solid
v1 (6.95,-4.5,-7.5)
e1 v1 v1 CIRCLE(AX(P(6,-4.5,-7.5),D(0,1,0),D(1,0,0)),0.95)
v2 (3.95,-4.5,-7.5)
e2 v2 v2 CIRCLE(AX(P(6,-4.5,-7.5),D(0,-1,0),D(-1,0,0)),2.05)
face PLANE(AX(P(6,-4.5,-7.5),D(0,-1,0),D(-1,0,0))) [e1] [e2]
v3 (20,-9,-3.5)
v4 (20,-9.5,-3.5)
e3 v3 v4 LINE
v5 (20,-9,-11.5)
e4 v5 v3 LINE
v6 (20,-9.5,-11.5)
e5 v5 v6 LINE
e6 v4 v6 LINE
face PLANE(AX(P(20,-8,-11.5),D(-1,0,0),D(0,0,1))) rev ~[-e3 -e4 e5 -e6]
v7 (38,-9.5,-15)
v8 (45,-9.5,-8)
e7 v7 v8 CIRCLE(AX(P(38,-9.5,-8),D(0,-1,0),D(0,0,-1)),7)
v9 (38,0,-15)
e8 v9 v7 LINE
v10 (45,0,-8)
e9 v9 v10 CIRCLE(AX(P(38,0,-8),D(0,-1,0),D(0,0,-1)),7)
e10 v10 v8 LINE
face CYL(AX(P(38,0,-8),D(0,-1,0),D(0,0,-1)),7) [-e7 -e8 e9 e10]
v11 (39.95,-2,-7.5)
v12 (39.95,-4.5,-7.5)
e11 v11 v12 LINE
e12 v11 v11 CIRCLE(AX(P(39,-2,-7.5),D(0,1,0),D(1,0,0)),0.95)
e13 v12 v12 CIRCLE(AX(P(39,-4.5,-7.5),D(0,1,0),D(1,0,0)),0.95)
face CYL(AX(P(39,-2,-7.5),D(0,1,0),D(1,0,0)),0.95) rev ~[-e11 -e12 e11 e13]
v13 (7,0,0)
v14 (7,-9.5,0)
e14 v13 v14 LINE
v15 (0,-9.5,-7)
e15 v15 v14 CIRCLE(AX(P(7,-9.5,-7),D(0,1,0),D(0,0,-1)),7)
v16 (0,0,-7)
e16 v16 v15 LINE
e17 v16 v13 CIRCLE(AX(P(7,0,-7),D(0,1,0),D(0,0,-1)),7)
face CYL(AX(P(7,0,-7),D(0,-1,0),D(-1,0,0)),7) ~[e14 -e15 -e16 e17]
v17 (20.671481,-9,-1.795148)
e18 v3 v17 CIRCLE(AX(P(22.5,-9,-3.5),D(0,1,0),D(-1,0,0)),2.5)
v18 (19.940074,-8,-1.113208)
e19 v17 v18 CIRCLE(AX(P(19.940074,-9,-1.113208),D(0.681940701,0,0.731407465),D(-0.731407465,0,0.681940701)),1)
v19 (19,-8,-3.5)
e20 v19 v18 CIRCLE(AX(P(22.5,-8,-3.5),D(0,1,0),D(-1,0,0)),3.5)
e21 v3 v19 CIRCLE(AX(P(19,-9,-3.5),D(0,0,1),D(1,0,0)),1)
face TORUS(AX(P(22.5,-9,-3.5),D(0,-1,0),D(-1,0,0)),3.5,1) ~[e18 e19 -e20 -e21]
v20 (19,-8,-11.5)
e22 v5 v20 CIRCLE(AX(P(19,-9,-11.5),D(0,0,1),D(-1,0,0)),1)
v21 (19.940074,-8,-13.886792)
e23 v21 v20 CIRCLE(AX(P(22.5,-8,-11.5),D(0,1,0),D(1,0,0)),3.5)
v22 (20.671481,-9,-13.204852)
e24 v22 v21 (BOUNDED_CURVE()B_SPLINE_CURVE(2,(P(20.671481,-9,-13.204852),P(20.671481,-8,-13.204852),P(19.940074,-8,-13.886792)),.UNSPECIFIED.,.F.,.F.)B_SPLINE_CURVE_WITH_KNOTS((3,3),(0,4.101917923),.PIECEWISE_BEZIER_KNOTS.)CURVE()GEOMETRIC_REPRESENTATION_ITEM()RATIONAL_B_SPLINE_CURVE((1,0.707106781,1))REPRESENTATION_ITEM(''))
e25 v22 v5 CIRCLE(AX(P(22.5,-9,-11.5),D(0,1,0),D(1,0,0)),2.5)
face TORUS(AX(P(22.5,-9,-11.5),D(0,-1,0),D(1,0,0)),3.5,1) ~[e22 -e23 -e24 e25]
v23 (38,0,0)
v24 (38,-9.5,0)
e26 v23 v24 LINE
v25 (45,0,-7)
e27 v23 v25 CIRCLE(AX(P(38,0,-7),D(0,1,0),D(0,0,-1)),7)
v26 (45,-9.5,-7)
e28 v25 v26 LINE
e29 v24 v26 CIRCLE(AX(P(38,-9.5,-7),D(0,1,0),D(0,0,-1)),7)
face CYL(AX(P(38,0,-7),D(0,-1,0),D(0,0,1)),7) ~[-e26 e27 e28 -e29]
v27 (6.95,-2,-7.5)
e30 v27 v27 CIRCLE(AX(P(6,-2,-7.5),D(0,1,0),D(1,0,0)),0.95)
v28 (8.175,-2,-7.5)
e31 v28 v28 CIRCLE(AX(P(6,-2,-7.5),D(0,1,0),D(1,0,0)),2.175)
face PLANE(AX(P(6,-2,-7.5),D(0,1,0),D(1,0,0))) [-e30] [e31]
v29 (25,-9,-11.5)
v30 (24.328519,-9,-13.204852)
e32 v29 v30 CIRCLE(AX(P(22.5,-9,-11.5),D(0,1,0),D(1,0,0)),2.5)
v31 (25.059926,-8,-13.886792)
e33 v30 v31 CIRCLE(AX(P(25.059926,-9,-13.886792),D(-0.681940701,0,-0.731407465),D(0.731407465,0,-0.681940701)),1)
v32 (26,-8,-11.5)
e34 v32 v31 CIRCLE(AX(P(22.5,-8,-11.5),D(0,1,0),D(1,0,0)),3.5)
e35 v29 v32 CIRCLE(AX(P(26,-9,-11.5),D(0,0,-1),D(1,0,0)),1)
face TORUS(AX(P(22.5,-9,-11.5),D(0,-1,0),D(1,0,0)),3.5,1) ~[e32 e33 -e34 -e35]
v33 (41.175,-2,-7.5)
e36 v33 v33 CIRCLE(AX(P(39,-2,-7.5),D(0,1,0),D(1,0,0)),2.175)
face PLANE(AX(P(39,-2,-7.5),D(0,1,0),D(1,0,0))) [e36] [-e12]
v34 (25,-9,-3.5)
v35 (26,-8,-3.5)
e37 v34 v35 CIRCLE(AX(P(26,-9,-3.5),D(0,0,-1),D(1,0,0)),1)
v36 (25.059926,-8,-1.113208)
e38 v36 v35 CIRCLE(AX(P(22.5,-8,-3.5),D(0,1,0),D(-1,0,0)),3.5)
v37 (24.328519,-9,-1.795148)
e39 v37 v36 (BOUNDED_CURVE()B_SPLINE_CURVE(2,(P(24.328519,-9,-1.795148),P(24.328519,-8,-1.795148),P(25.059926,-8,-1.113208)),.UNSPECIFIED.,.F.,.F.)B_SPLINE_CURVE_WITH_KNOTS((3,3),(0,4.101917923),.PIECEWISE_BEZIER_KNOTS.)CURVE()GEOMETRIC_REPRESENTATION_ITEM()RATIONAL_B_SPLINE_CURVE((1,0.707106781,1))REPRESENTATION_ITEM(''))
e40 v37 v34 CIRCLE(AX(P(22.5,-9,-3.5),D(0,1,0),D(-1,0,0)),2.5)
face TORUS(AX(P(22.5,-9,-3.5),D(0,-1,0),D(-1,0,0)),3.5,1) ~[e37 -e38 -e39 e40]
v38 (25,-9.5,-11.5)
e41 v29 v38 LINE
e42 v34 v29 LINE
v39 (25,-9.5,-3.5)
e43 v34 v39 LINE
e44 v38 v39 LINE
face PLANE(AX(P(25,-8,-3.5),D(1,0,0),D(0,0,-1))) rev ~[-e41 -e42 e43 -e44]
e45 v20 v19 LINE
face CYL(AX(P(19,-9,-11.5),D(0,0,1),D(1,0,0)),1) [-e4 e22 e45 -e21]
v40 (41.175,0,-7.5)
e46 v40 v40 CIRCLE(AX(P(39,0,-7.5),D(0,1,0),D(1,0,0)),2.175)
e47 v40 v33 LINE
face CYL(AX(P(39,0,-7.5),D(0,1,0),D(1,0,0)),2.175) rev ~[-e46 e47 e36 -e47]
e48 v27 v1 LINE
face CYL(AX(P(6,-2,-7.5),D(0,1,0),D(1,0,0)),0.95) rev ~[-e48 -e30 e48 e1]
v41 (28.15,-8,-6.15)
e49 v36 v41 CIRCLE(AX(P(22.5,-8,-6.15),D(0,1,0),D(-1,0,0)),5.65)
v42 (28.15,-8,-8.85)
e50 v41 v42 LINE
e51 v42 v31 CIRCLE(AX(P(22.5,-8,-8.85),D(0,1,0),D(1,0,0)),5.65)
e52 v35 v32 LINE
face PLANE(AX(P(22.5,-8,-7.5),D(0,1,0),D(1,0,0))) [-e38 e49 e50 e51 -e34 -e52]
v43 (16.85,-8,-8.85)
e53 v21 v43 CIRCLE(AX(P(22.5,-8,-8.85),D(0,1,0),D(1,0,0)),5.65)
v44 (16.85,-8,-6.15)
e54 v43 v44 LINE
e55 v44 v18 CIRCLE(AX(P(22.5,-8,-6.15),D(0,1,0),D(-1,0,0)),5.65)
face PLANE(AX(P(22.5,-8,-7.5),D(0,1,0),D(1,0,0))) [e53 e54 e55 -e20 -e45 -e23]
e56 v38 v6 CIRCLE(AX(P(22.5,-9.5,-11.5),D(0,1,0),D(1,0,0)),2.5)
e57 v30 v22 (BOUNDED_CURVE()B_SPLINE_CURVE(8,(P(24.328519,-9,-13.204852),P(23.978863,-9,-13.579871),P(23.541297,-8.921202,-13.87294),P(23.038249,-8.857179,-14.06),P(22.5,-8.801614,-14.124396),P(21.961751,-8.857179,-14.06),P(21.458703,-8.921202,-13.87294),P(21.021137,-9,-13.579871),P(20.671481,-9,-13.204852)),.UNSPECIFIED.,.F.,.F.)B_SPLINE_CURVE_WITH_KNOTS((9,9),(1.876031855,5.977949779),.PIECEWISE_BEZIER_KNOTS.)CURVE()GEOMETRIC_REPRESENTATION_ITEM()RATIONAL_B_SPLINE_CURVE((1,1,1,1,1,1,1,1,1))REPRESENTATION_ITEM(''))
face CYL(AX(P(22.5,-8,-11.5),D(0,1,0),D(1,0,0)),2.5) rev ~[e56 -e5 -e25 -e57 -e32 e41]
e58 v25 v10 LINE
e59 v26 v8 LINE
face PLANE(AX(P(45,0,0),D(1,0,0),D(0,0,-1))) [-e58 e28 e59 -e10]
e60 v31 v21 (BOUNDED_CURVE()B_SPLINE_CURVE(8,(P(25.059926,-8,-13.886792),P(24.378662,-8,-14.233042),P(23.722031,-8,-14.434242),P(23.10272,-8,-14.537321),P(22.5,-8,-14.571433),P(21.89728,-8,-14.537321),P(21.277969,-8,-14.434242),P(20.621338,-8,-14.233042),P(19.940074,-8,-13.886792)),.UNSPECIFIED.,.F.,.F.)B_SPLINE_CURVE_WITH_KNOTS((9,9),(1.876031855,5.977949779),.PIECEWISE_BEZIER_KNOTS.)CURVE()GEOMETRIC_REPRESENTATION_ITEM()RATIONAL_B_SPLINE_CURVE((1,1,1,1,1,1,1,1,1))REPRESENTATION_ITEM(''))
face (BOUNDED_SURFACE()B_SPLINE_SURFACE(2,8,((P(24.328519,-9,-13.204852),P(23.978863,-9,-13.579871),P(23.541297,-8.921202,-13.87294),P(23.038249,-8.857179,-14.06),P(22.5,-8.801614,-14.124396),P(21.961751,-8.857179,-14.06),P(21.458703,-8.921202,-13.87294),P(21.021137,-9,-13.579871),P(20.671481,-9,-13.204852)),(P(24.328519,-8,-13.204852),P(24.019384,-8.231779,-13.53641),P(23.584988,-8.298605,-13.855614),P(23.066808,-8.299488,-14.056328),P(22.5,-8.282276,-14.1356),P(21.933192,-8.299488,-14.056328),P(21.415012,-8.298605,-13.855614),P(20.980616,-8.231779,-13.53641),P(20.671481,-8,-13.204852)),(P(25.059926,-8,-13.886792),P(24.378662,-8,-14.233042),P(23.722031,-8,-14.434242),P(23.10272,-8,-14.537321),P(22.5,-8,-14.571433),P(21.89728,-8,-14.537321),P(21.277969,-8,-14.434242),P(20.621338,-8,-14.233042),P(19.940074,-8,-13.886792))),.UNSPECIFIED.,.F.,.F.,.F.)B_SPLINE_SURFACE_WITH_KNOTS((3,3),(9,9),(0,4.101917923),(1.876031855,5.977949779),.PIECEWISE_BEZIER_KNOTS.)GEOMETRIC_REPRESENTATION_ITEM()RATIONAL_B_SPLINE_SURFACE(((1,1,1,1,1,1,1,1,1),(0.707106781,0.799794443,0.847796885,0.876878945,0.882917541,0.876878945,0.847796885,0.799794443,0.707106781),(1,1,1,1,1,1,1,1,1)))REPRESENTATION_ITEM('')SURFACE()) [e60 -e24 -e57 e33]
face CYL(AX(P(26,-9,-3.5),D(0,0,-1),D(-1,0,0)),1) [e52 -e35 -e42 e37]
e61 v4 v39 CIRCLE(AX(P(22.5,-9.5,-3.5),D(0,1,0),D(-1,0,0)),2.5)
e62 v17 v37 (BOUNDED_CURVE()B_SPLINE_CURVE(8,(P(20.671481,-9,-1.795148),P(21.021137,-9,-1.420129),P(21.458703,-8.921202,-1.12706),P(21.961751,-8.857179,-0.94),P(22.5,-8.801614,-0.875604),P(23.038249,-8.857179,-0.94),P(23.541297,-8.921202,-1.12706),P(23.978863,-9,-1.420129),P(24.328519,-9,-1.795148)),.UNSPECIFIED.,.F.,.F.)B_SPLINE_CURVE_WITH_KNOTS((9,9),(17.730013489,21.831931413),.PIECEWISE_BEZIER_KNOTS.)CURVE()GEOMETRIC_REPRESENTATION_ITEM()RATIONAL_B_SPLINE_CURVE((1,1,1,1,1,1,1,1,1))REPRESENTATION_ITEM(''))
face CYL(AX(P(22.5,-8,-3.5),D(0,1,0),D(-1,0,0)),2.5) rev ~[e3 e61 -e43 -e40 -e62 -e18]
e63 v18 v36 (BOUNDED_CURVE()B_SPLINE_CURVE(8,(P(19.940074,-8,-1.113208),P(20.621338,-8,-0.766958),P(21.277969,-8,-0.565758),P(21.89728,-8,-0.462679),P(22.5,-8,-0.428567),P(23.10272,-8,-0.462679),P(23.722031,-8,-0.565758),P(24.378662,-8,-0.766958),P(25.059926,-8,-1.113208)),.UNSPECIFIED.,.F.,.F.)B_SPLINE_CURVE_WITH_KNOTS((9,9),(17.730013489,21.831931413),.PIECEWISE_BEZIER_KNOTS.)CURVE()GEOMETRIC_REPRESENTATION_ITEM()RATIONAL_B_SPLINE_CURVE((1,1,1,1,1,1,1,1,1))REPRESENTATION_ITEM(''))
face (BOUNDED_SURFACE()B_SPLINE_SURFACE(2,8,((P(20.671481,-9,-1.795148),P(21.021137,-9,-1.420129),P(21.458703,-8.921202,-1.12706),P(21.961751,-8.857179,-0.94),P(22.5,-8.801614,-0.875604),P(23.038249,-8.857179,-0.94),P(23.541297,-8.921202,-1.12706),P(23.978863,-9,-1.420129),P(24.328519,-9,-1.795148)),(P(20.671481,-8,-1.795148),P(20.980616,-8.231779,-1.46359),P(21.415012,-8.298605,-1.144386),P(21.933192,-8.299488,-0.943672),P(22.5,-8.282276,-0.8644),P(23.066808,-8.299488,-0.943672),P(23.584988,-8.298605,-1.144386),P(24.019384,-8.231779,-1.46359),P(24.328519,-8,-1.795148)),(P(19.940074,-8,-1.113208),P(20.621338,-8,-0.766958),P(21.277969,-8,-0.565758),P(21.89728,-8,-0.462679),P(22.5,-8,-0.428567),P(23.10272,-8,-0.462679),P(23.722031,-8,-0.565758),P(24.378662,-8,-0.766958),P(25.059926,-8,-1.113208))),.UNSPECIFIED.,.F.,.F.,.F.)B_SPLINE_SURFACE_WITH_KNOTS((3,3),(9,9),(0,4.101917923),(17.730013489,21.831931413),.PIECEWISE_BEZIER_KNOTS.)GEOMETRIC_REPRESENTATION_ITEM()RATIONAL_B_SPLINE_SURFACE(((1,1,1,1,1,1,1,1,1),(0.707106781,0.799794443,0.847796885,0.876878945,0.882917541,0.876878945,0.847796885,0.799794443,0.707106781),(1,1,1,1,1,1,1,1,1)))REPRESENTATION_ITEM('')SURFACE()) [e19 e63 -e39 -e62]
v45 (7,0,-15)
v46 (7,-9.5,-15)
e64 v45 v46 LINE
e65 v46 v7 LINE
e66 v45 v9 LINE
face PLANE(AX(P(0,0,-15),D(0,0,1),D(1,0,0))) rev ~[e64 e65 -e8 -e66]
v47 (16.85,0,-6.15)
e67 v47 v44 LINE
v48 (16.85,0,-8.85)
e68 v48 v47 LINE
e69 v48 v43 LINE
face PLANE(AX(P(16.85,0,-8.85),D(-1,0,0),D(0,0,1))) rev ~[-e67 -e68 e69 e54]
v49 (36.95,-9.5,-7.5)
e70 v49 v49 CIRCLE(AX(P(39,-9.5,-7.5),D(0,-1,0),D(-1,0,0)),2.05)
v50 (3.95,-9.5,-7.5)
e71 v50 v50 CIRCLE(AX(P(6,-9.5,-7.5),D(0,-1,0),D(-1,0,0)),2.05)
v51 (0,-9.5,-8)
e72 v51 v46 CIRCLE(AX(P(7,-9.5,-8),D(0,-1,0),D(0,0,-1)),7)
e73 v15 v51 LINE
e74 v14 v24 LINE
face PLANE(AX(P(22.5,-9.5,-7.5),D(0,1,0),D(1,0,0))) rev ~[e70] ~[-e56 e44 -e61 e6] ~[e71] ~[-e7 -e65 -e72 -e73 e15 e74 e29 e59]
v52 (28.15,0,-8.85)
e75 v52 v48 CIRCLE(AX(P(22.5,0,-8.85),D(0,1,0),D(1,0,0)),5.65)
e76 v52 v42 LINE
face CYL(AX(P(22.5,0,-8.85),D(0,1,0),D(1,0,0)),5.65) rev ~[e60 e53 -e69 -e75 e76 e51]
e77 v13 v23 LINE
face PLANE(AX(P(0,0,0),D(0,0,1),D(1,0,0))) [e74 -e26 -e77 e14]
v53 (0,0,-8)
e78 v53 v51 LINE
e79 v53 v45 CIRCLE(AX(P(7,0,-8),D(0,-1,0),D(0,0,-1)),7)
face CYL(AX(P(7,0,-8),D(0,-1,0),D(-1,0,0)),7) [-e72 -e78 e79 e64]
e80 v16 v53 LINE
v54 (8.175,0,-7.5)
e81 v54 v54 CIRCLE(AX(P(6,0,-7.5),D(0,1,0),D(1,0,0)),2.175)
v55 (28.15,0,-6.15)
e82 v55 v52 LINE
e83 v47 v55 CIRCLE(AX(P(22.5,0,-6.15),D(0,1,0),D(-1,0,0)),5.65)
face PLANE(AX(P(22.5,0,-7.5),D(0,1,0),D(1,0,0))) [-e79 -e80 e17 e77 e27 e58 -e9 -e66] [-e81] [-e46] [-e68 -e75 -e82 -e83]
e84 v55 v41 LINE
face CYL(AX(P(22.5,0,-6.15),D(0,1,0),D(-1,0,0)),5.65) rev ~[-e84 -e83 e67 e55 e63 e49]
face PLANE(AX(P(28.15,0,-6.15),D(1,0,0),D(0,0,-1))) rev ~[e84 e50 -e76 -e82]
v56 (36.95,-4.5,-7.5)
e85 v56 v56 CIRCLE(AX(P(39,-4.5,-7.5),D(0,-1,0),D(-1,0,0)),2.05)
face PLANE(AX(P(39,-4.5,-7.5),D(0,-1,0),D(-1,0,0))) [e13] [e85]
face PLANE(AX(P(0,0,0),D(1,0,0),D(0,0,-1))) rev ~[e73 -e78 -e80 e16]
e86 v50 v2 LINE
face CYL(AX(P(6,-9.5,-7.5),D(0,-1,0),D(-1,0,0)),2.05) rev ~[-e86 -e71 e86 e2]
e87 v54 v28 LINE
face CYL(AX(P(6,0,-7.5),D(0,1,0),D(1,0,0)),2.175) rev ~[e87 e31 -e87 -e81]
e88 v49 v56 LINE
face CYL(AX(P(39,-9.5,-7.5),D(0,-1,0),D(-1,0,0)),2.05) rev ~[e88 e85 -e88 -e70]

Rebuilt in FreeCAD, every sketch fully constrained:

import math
import FreeCAD as App
import Part
import Sketcher


def edges_at(feature, points):
    """Names of the edges that pass closest to the given points."""
    edges = feature.Shape.Edges
    near = lambda p: min(range(len(edges)), key=lambda i: edges[i].distToShape(Part.Vertex(*p))[0])
    return sorted({f"Edge{near(p) + 1}" for p in points})

doc = App.newDocument("Part")
body = doc.addObject("PartDesign::Body", "Body")

# Sketch on XZ plane
sketch1 = body.newObject("Sketcher::SketchObject", "Sketch")
sketch1.AttachmentSupport = (doc.getObject("XZ_Plane"), [""])
sketch1.MapMode = "FlatFace"
sketch1.addGeometry([
    Part.LineSegment(App.Vector(0, -15, 0), App.Vector(0, 0, 0)),
    Part.LineSegment(App.Vector(0, 0, 0), App.Vector(45, 0, 0)),
    Part.LineSegment(App.Vector(45, 0, 0), App.Vector(45, -15, 0)),
    Part.LineSegment(App.Vector(45, -15, 0), App.Vector(0, -15, 0)),
], False)
sketch1.addConstraint([
    Sketcher.Constraint("Coincident", 0, 2, 1, 1),
    Sketcher.Constraint("Coincident", 1, 2, 2, 1),
    Sketcher.Constraint("Coincident", 2, 2, 3, 1),
    Sketcher.Constraint("Coincident", 3, 2, 0, 1),
    Sketcher.Constraint("Vertical", 0),
    Sketcher.Constraint("Horizontal", 1),
    Sketcher.Constraint("Vertical", 2),
    Sketcher.Constraint("Horizontal", 3),
    Sketcher.Constraint("Coincident", 0, 2, -1, 1),
    Sketcher.Constraint("DistanceX", 1, 1, 1, 2, 45.0),
    Sketcher.Constraint("DistanceY", 0, 1, 0, 2, 15.0),
])
pad1 = body.newObject("PartDesign::Pad", "Pad")
pad1.Profile = sketch1
pad1.Length = 9.5

# Sketch on XZ plane
sketch2 = body.newObject("Sketcher::SketchObject", "Sketch001")
sketch2.AttachmentSupport = (doc.getObject("XZ_Plane"), [""])
sketch2.MapMode = "FlatFace"
sketch2.addGeometry(Part.Circle(App.Vector(22, -9, 0), App.Vector(0, 0, 1), 6), False)
sketch2.addConstraint([
    Sketcher.Constraint("Diameter", 0, 11.0),
    Sketcher.Constraint("DistanceX", -1, 1, 0, 3, 22.5),
    Sketcher.Constraint("DistanceY", 0, 3, -1, 1, 8.82),
])
pocket1 = body.newObject("PartDesign::Pocket", "Pocket")
pocket1.Profile = sketch2
pocket1.Length = 8
pocket1.Reversed = True

# Sketch on XZ plane
sketch3 = body.newObject("Sketcher::SketchObject", "Sketch002")
sketch3.AttachmentSupport = (doc.getObject("XZ_Plane"), [""])
sketch3.MapMode = "FlatFace"
sketch3.addGeometry([
    Part.LineSegment(App.Vector(16.9, -8.8, 0), App.Vector(16.9, -6.2, 0)),
    Part.ArcOfCircle(Part.Circle(App.Vector(22.5, -6.2, 0), App.Vector(0, 0, 1), 5.7), math.radians(0), math.radians(180)),
    Part.LineSegment(App.Vector(28.1, -6.2, 0), App.Vector(28.1, -8.8, 0)),
    Part.ArcOfCircle(Part.Circle(App.Vector(22.5, -8.8, 0), App.Vector(0, 0, 1), 5.7), math.radians(180), math.radians(360)),
], False)
sketch3.addConstraint([
    Sketcher.Constraint("Tangent", 0, 2, 1, 2),
    Sketcher.Constraint("Tangent", 1, 1, 2, 1),
    Sketcher.Constraint("Tangent", 2, 2, 3, 2),
    Sketcher.Constraint("Tangent", 3, 1, 0, 1),
    Sketcher.Constraint("Vertical", 0),
    Sketcher.Constraint("Vertical", 2),
    Sketcher.Constraint("Radius", 1, 5.65),
    Sketcher.Constraint("DistanceY", 0, 1, 0, 2, 2.7),
    Sketcher.Constraint("DistanceX", -1, 1, 1, 3, 22.5),
    Sketcher.Constraint("DistanceY", 1, 3, -1, 1, 6.15),
])
pocket2 = body.newObject("PartDesign::Pocket", "Pocket001")
pocket2.Profile = sketch3
pocket2.Length = 8
pocket2.Reversed = True

# Sketch on XZ plane
sketch4 = body.newObject("Sketcher::SketchObject", "Sketch003")
sketch4.AttachmentSupport = (doc.getObject("XZ_Plane"), [""])
sketch4.MapMode = "FlatFace"
sketch4.AttachmentOffset = App.Placement(App.Vector(0, 0, 8), App.Rotation())
sketch4.addGeometry([
    Part.LineSegment(App.Vector(20, -11.5, 0), App.Vector(20, -3.5, 0)),
    Part.ArcOfCircle(Part.Circle(App.Vector(22.5, -3.5, 0), App.Vector(0, 0, 1), 2.5), math.radians(0), math.radians(180)),
    Part.LineSegment(App.Vector(25, -3.5, 0), App.Vector(25, -11.5, 0)),
    Part.ArcOfCircle(Part.Circle(App.Vector(22.5, -11.5, 0), App.Vector(0, 0, 1), 2.5), math.radians(180), math.radians(360)),
], False)
sketch4.addConstraint([
    Sketcher.Constraint("Tangent", 0, 2, 1, 2),
    Sketcher.Constraint("Tangent", 1, 1, 2, 1),
    Sketcher.Constraint("Tangent", 2, 2, 3, 2),
    Sketcher.Constraint("Tangent", 3, 1, 0, 1),
    Sketcher.Constraint("Vertical", 0),
    Sketcher.Constraint("Vertical", 2),
    Sketcher.Constraint("Radius", 1, 2.5),
    Sketcher.Constraint("DistanceY", 0, 1, 0, 2, 8.0),
    Sketcher.Constraint("DistanceX", -1, 1, 0, 2, 20.0),
    Sketcher.Constraint("DistanceY", 1, 3, -1, 1, 3.5),
])
pocket3 = body.newObject("PartDesign::Pocket", "Pocket002")
pocket3.Profile = sketch4
pocket3.Type = "UpToFirst"
pocket3.Reversed = True

# Sketch on XZ plane
sketch5 = body.newObject("Sketcher::SketchObject", "Sketch004")
sketch5.AttachmentSupport = (doc.getObject("XZ_Plane"), [""])
sketch5.MapMode = "FlatFace"
sketch5.addGeometry([
    Part.Circle(App.Vector(6, -7.5, 0), App.Vector(0, 0, 1), 2.2),
    Part.Circle(App.Vector(39, -7.5, 0), App.Vector(0, 0, 1), 2.2),
], False)
sketch5.addConstraint([
    Sketcher.Constraint("Equal", 0, 1),
    Sketcher.Constraint("Horizontal", 0, 3, 1, 3),
    Sketcher.Constraint("Diameter", 0, 4.35),
    Sketcher.Constraint("DistanceX", -1, 1, 0, 3, 6.0),
    Sketcher.Constraint("DistanceX", -1, 1, 1, 3, 39.0),
    Sketcher.Constraint("DistanceY", 0, 3, -1, 1, 7.5),
])
pocket4 = body.newObject("PartDesign::Pocket", "Pocket003")
pocket4.Profile = sketch5
pocket4.Length = 2
pocket4.Reversed = True
doc.recompute()

fillet = body.newObject("PartDesign::Fillet", "Fillet")
fillet.Base = (pocket4, edges_at(pocket4, [
    (0, -4.75, -15),
    (45, -4.75, -15),
    (45, -4.75, 0),
    (0, -4.75, 0),
]))
fillet.Radius = 7

# Sketch on XZ plane
sketch6 = body.newObject("Sketcher::SketchObject", "Sketch005")
sketch6.AttachmentSupport = (doc.getObject("XZ_Plane"), [""])
sketch6.MapMode = "FlatFace"
sketch6.AttachmentOffset = App.Placement(App.Vector(0, 0, 9.5), App.Rotation())
sketch6.addGeometry([
    Part.Circle(App.Vector(39, -7.5, 0), App.Vector(0, 0, 1), 2),
    Part.Circle(App.Vector(6, -7.5, 0), App.Vector(0, 0, 1), 2),
], False)
sketch6.addConstraint([
    Sketcher.Constraint("Equal", 0, 1),
    Sketcher.Constraint("Horizontal", 0, 3, 1, 3),
    Sketcher.Constraint("Diameter", 0, 4.1),
    Sketcher.Constraint("DistanceX", -1, 1, 0, 3, 39.0),
    Sketcher.Constraint("DistanceX", -1, 1, 1, 3, 6.0),
    Sketcher.Constraint("DistanceY", 0, 3, -1, 1, 7.5),
])
pocket5 = body.newObject("PartDesign::Pocket", "Pocket004")
pocket5.Profile = sketch6
pocket5.Length = 5

# Sketch on XZ plane
sketch7 = body.newObject("Sketcher::SketchObject", "Sketch006")
sketch7.AttachmentSupport = (doc.getObject("XZ_Plane"), [""])
sketch7.MapMode = "FlatFace"
sketch7.AttachmentOffset = App.Placement(App.Vector(0, 0, 2), App.Rotation())
sketch7.addGeometry([
    Part.Circle(App.Vector(6, -7.5, 0), App.Vector(0, 0, 1), 0.9),
    Part.Circle(App.Vector(39, -7.5, 0), App.Vector(0, 0, 1), 0.9),
], False)
sketch7.addConstraint([
    Sketcher.Constraint("Equal", 0, 1),
    Sketcher.Constraint("Horizontal", 0, 3, 1, 3),
    Sketcher.Constraint("Diameter", 0, 1.9),
    Sketcher.Constraint("DistanceX", -1, 1, 0, 3, 6.0),
    Sketcher.Constraint("DistanceX", -1, 1, 1, 3, 39.0),
    Sketcher.Constraint("DistanceY", 0, 3, -1, 1, 7.5),
])
pocket6 = body.newObject("PartDesign::Pocket", "Pocket005")
pocket6.Profile = sketch7
pocket6.Length = 3
pocket6.Reversed = True
doc.recompute()

fillet2 = body.newObject("PartDesign::Fillet", "Fillet001")
fillet2.Base = (pocket6, edges_at(pocket6, [
    (22.5, -8, -14),
    (20, -8, -7.5),
    (22.5, -8, -1),
    (25, -8, -7.5),
]))
fillet2.Radius = 1

doc.recompute()
